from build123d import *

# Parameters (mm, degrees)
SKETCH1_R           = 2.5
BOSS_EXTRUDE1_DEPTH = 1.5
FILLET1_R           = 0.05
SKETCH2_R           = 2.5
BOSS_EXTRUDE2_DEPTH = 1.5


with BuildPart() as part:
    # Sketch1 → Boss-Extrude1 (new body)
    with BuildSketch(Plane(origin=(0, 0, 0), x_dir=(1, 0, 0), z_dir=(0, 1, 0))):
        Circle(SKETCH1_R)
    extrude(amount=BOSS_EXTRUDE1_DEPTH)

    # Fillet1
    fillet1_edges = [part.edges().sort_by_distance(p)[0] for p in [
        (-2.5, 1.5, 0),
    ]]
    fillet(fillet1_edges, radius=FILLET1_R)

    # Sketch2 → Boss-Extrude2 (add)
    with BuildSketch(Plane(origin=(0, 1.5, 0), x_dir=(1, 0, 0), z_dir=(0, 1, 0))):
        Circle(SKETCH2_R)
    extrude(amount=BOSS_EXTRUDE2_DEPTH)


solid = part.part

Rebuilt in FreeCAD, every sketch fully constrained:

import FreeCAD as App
import Part
import Sketcher


def edges_at(feature, points):
    """Names of the edges that pass closest to the given points."""
    edges = feature.Shape.Edges
    near = lambda p: min(range(len(edges)), key=lambda i: edges[i].distToShape(Part.Vertex(*p))[0])
    return sorted({f"Edge{near(p) + 1}" for p in points})

doc = App.newDocument("Part")
body = doc.addObject("PartDesign::Body", "Body")

sketch1 = body.newObject("Sketcher::SketchObject", "Sketch")
sketch1.AttachmentSupport = (doc.getObject("XZ_Plane"), [""])
sketch1.MapMode = "FlatFace"
sketch1.addGeometry(Part.Circle(App.Vector(0, 0, 0), App.Vector(0, 0, 1), 2.5), False)
sketch1.addConstraint([
    Sketcher.Constraint("Coincident", 0, 3, -1, 1),
    Sketcher.Constraint("Diameter", 0, 5.0),
])
pad1 = body.newObject("PartDesign::Pad", "Pad")
pad1.Profile = sketch1
pad1.Length = 1.5
pad1.Reversed = True
doc.recompute()

fillet = body.newObject("PartDesign::Fillet", "Fillet")
fillet.Base = (pad1, edges_at(pad1, [(-2.5, 1.5, 0)]))
fillet.Radius = 0.05

sketch2 = body.newObject("Sketcher::SketchObject", "Sketch001")
sketch2.AttachmentSupport = (doc.getObject("XZ_Plane"), [""])
sketch2.MapMode = "FlatFace"
sketch2.AttachmentOffset = App.Placement(App.Vector(0, 0, -1.5), App.Rotation())
sketch2.addGeometry(Part.Circle(App.Vector(0, 0, 0), App.Vector(0, 0, 1), 2.5), False)
sketch2.addConstraint([
    Sketcher.Constraint("Coincident", 0, 3, -1, 1),
    Sketcher.Constraint("Diameter", 0, 5.0),
])
pad2 = body.newObject("PartDesign::Pad", "Pad001")
pad2.Profile = sketch2
pad2.Length = 1.5
pad2.Reversed = True

doc.recompute()
